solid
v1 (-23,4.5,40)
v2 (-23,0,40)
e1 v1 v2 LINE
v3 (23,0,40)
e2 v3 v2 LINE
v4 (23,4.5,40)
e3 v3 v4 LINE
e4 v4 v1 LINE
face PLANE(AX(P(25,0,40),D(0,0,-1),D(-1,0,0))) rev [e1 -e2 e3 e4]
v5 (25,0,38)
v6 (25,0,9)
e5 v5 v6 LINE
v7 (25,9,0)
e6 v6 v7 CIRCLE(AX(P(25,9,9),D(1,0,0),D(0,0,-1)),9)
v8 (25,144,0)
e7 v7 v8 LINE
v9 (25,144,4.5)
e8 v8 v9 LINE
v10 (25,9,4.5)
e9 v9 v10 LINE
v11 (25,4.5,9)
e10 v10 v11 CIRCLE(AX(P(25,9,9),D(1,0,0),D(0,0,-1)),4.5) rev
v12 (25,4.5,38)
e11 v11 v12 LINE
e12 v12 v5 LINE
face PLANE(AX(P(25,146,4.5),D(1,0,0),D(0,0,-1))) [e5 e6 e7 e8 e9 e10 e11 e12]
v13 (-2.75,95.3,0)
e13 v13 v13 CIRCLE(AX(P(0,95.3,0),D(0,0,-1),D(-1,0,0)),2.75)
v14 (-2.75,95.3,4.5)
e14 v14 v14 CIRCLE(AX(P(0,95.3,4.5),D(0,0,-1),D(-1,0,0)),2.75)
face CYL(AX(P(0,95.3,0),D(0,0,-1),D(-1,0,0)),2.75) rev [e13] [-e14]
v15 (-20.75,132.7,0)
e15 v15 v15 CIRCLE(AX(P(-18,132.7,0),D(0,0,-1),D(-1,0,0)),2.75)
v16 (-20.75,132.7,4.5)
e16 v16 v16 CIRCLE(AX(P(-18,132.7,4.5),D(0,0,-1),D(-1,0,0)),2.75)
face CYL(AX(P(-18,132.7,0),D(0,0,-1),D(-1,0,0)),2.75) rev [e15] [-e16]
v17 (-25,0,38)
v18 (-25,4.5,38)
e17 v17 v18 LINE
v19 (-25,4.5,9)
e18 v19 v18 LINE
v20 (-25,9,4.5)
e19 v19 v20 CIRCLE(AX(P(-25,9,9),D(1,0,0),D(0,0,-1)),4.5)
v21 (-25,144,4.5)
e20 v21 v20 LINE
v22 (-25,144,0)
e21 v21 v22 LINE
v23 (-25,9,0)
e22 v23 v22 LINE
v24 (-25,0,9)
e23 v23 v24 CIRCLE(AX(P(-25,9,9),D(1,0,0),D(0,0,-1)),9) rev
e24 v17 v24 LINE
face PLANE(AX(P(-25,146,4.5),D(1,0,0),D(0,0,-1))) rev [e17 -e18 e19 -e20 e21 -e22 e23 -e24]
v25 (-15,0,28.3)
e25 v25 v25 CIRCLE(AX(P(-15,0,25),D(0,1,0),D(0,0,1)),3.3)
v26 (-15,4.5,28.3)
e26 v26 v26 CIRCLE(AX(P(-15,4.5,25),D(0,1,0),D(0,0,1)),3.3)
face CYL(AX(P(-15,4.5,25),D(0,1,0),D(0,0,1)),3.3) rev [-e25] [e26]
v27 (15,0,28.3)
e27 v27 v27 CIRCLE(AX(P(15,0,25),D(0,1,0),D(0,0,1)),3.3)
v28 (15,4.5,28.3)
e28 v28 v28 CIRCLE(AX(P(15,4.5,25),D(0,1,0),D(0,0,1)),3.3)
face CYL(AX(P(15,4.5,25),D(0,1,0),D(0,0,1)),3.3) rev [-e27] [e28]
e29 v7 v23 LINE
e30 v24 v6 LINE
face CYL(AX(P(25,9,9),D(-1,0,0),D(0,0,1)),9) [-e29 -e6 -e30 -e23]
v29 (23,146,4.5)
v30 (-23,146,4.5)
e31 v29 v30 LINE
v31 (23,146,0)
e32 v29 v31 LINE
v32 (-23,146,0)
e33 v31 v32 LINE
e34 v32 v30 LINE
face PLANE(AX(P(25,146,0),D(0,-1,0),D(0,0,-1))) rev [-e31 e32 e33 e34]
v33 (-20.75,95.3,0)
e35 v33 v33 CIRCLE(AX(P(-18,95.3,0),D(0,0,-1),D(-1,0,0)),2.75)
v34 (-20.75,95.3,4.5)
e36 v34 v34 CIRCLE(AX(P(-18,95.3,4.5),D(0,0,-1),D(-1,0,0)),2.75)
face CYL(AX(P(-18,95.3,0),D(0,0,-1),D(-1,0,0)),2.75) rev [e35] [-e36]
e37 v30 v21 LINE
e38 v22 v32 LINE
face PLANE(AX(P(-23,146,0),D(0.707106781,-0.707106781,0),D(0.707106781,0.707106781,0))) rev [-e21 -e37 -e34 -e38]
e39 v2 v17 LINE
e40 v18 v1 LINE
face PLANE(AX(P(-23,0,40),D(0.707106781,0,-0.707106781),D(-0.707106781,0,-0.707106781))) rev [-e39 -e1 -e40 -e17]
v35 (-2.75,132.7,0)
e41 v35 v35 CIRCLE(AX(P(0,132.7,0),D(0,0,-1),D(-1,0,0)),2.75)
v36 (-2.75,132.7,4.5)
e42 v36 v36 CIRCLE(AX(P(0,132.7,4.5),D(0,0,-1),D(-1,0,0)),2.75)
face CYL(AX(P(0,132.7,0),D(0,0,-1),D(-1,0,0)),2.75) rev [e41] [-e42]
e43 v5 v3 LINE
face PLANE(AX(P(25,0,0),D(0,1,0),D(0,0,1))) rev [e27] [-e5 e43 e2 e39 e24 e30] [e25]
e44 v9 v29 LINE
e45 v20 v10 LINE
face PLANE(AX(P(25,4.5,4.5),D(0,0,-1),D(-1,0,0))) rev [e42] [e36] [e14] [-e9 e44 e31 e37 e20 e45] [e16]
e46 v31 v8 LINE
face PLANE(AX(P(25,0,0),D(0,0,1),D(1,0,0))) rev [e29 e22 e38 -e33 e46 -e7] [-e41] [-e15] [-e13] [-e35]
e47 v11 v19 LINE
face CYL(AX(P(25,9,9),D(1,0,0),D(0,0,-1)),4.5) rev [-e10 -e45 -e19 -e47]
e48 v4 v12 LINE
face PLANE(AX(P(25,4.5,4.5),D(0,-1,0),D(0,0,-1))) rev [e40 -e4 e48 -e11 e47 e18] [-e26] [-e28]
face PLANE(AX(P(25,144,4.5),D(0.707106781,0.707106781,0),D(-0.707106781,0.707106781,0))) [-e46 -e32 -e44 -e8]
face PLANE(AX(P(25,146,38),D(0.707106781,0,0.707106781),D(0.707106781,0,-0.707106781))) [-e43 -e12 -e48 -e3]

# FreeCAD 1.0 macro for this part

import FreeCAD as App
import Part
import Sketcher
from FreeCAD import Vector


def edges_at(feature, points):
    """Names of the edges that pass closest to the given points."""
    edges = feature.Shape.Edges
    near = lambda p: min(range(len(edges)), key=lambda i: edges[i].distToShape(Part.Vertex(*p))[0])
    return sorted({f"Edge{near(p) + 1}" for p in points})


def add_polygon(sketch, points):
    """Adds a closed chain of lines whose ends are joined by coincident constraints."""
    first, n = sketch.GeometryCount, len(points)
    for a, b in zip(points, points[1:] + points[:1]):
        sketch.addGeometry(Part.LineSegment(App.Vector(*a, 0), App.Vector(*b, 0)), False)
    for i in range(n):
        sketch.addConstraint(Sketcher.Constraint("Coincident", first + i, 2, first + (i + 1) % n, 1))

doc = App.newDocument("Part")
body = doc.addObject("PartDesign::Body", "Body")

sketch1 = body.newObject("Sketcher::SketchObject", "Sketch")
sketch1.AttachmentSupport = (doc.getObject("YZ_Plane"), [""])
sketch1.MapMode = "FlatFace"
add_polygon(sketch1, [(0, 40), (0, 0), (146, 0), (146, 4.5), (4.5, 4.5), (4.5, 40)])
sketch1.addConstraint([
    Sketcher.Constraint("Vertical", 0),
    Sketcher.Constraint("Horizontal", 1),
    Sketcher.Constraint("Vertical", 2),
    Sketcher.Constraint("Horizontal", 3),
    Sketcher.Constraint("Vertical", 4),
    Sketcher.Constraint("Horizontal", 5),
    Sketcher.Constraint("Coincident", 0, 2, -1, 1),
    Sketcher.Constraint("Equal", 5, 2),
    Sketcher.Constraint("DistanceX", 1, 1, 1, 2, 146.0),
    Sketcher.Constraint("DistanceY", 0, 2, 0, 1, 40.0),
    Sketcher.Constraint("DistanceX", 3, 2, 3, 1, 141.5),
])
pad1 = body.newObject("PartDesign::Pad", "Pad")
pad1.Profile = sketch1
pad1.Length = 50
pad1.Midplane = True
doc.recompute()

fillet = body.newObject("PartDesign::Fillet", "Fillet")
fillet.Base = (pad1, edges_at(pad1, [(0, 4.5, 4.5)]))
fillet.Radius = 4.5
doc.recompute()

fillet2 = body.newObject("PartDesign::Fillet", "Fillet001")
fillet2.Base = (fillet, edges_at(fillet, [(0, 0, 0)]))
fillet2.Radius = 9

sketch2 = body.newObject("Sketcher::SketchObject", "Sketch001")
sketch2.AttachmentSupport = (doc.getObject("XZ_Plane"), [""])
sketch2.MapMode = "FlatFace"
sketch2.AttachmentOffset = App.Placement(Vector(0, 0, -4.5), App.Rotation())
sketch2.addGeometry([
    Part.Circle(Vector(-15, 25, 0), Vector(0, 0, 1), 3.3),
    Part.Circle(Vector(15, 25, 0), Vector(0, 0, 1), 3.3),
], False)
sketch2.addConstraint([
    Sketcher.Constraint("Equal", 0, 1),
    Sketcher.Constraint("Symmetric", 0, 3, 1, 3, -2),
    Sketcher.Constraint("Diameter", 0, 6.6),
    Sketcher.Constraint("DistanceX", 0, 3, -1, 1, 15.0),
    Sketcher.Constraint("DistanceY", -1, 1, 0, 3, 25.0),
])
doc.recompute()
hole = body.newObject("PartDesign::Hole", "Hole")
hole.Profile = sketch2
hole.ThreadType = "None"
hole.Diameter = 6.6
hole.DepthType = "ThroughAll"
hole.Reversed = True

sketch3 = body.newObject("Sketcher::SketchObject", "Sketch002")
sketch3.AttachmentSupport = (doc.getObject("XY_Plane"), [""])
sketch3.MapMode = "FlatFace"
sketch3.addGeometry([
    Part.Circle(Vector(-18, 132.7, 0), Vector(0, 0, 1), 2.8),
    Part.Circle(Vector(0, 132.7, 0), Vector(0, 0, 1), 2.8),
    Part.Circle(Vector(0, 95.3, 0), Vector(0, 0, 1), 2.8),
    Part.Circle(Vector(-18, 95.3, 0), Vector(0, 0, 1), 2.8),
], False)
sketch3.addConstraint([
    Sketcher.Constraint("Equal", 0, 1),
    Sketcher.Constraint("Equal", 1, 2),
    Sketcher.Constraint("Equal", 2, 3),
    Sketcher.Constraint("PointOnObject", 1, 3, -2),
    Sketcher.Constraint("PointOnObject", 2, 3, -2),
    Sketcher.Constraint("Horizontal", 0, 3, 1, 3),
    Sketcher.Constraint("Horizontal", 2, 3, 3, 3),
    Sketcher.Constraint("Vertical", 0, 3, 3, 3),
    Sketcher.Constraint("Diameter", 0, 5.5),
    Sketcher.Constraint("DistanceX", 0, 3, -1, 1, 18.0),
    Sketcher.Constraint("DistanceY", -1, 1, 0, 3, 132.7),
    Sketcher.Constraint("DistanceY", -1, 1, 2, 3, 95.3),
])
doc.recompute()
hole2 = body.newObject("PartDesign::Hole", "Hole001")
hole2.Profile = sketch3
hole2.ThreadType = "None"
hole2.Diameter = 5.5
hole2.DepthType = "ThroughAll"
hole2.Reversed = True
doc.recompute()

chamfer = body.newObject("PartDesign::Chamfer", "Chamfer")
chamfer.Base = (hole2, edges_at(hole2, [
    (25, 2.25, 40),
    (25, 146, 2.25),
    (-25, 146, 2.25),
    (-25, 2.25, 40),
]))
chamfer.Size = 2

doc.recompute()
